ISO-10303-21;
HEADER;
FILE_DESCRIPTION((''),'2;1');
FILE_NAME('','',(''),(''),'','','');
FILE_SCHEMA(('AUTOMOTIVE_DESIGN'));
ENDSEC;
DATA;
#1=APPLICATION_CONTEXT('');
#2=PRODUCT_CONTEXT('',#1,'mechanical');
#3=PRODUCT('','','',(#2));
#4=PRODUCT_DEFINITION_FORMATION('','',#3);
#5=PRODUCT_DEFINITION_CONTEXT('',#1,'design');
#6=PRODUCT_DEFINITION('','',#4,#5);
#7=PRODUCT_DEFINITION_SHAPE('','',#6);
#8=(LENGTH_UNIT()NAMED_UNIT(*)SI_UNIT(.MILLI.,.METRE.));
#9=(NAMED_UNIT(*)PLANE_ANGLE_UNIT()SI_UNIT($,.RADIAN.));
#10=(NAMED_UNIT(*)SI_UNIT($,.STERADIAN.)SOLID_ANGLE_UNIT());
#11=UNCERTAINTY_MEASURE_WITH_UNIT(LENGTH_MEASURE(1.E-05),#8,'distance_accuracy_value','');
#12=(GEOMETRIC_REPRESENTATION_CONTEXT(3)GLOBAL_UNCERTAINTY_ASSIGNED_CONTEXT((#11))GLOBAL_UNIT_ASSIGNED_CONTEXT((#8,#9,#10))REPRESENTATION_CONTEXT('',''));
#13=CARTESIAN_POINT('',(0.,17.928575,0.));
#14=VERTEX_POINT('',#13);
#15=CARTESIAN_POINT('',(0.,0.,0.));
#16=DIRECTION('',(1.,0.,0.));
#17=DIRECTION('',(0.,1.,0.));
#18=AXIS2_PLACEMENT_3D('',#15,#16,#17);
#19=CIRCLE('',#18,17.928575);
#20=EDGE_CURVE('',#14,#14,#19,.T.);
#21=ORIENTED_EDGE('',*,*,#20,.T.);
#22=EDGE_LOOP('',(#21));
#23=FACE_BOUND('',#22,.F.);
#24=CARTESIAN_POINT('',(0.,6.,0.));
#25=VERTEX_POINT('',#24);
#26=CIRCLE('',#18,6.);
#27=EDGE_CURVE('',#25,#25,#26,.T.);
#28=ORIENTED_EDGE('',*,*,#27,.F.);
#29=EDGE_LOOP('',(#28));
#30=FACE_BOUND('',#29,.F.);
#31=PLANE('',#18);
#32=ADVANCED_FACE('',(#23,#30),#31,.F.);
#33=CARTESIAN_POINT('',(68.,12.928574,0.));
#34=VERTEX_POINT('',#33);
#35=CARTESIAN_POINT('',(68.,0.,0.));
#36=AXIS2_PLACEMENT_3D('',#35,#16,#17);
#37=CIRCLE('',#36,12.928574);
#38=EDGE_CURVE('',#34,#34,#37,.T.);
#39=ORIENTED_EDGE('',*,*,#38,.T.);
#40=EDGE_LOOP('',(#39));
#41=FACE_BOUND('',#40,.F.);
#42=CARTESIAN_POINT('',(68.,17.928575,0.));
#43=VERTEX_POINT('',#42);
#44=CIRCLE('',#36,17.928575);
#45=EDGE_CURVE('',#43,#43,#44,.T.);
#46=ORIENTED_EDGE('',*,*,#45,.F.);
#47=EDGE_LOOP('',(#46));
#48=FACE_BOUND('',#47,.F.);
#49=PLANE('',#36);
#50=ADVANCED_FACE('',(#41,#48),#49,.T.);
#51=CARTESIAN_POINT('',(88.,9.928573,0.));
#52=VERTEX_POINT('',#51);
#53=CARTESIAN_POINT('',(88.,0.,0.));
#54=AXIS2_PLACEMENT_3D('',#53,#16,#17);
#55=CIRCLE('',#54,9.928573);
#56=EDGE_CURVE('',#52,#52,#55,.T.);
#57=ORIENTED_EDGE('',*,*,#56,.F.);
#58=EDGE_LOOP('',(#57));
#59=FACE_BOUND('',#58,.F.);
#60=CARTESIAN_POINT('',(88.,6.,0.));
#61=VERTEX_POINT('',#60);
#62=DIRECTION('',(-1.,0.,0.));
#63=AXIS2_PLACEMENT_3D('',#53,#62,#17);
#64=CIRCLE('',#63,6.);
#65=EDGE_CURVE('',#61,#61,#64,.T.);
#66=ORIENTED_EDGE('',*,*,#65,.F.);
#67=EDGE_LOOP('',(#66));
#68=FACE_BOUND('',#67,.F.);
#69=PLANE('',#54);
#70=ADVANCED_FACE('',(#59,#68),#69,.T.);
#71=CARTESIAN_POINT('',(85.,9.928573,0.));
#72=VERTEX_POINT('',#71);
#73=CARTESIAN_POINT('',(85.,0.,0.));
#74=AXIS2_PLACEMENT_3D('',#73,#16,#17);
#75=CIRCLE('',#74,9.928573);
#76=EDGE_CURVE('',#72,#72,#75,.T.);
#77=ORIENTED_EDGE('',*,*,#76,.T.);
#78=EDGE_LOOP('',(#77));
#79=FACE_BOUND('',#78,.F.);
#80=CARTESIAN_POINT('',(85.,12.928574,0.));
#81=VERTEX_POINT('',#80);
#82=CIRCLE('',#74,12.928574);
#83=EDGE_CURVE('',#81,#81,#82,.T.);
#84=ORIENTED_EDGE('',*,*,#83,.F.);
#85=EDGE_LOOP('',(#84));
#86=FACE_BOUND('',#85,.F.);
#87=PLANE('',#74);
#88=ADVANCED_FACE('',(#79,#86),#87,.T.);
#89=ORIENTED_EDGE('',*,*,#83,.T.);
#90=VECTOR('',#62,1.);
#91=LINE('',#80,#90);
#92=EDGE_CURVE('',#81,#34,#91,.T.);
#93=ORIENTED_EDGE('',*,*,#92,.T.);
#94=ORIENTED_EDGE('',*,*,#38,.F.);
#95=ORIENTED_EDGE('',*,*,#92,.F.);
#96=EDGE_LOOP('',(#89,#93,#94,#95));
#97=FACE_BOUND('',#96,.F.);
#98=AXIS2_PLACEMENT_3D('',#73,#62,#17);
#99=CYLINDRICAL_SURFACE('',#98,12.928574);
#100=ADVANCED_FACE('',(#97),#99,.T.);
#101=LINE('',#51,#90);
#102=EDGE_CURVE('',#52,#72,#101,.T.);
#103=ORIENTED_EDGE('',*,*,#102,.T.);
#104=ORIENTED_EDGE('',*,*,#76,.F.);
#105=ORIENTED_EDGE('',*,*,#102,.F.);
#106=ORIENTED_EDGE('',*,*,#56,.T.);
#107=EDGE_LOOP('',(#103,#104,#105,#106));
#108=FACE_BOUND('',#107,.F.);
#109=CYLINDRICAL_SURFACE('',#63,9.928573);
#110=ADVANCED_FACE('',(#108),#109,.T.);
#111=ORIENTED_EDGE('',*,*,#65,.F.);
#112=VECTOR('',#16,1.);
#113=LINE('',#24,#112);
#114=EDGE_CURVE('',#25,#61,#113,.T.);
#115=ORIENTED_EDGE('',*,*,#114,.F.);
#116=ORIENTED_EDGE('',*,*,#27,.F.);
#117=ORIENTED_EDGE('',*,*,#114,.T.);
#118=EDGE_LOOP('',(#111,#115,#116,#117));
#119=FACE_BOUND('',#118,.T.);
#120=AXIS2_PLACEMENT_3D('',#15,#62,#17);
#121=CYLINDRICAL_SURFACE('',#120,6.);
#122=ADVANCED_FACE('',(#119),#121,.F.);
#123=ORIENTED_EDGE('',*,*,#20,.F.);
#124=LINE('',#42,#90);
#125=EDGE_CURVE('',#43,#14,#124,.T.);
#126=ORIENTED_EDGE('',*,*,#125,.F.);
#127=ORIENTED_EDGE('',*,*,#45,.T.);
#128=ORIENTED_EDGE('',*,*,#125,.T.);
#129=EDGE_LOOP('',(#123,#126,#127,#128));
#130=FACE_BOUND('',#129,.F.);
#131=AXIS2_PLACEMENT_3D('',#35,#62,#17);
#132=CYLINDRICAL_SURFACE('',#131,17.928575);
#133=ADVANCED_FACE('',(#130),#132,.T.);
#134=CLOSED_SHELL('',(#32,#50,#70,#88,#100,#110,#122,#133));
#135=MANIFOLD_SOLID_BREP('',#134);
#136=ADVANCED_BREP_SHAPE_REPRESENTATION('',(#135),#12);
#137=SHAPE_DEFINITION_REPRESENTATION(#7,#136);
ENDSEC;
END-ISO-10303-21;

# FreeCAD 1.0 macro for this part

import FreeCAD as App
import Part
import Sketcher

V = App.Vector

doc = App.newDocument("Part")
body = doc.addObject("PartDesign::Body", "Body")

sketch1 = body.newObject("Sketcher::SketchObject", "Sketch")
sketch1.AttachmentSupport = (doc.getObject("XY_Plane"), [""])
sketch1.MapMode = "FlatFace"
sketch1.addGeometry([
    Part.LineSegment(V(0, 17.928575, 0), V(0, 0, 0)),
    Part.LineSegment(V(0, 0, 0), V(88, 0, 0)),
    Part.LineSegment(V(88, 0, 0), V(88, 9.928573, 0)),
    Part.LineSegment(V(88, 9.928573, 0), V(85, 9.928573, 0)),
    Part.LineSegment(V(85, 9.928573, 0), V(85, 12.928574, 0)),
    Part.LineSegment(V(85, 12.928574, 0), V(68, 12.928574, 0)),
    Part.LineSegment(V(68, 12.928574, 0), V(68, 17.928575, 0)),
    Part.LineSegment(V(68, 17.928575, 0), V(0, 17.928575, 0)),
], False)
sketch1.addConstraint([
    Sketcher.Constraint("Coincident", 0, 2, 1, 1),
    Sketcher.Constraint("Coincident", 1, 2, 2, 1),
    Sketcher.Constraint("Coincident", 2, 2, 3, 1),
    Sketcher.Constraint("Coincident", 3, 2, 4, 1),
    Sketcher.Constraint("Coincident", 4, 2, 5, 1),
    Sketcher.Constraint("Coincident", 5, 2, 6, 1),
    Sketcher.Constraint("Coincident", 6, 2, 7, 1),
    Sketcher.Constraint("Coincident", 7, 2, 0, 1),
    Sketcher.Constraint("Vertical", 0),
    Sketcher.Constraint("Horizontal", 1),
    Sketcher.Constraint("Vertical", 2),
    Sketcher.Constraint("Horizontal", 3),
    Sketcher.Constraint("Vertical", 4),
    Sketcher.Constraint("Horizontal", 5),
    Sketcher.Constraint("Vertical", 6),
    Sketcher.Constraint("Horizontal", 7),
    Sketcher.Constraint("Coincident", 0, 2, -1, 1),
    Sketcher.Constraint("Equal", 3, 4),
    Sketcher.Constraint("DistanceX", 1, 1, 1, 2, 88.0),
    Sketcher.Constraint("DistanceX", 3, 2, 3, 1, 3.0),
    Sketcher.Constraint("DistanceX", 5, 2, 5, 1, 17.0),
    Sketcher.Constraint("DistanceY", 6, 1, 6, 2, 5.000001),
    Sketcher.Constraint("DistanceY", 0, 2, 0, 1, 17.928575),
])
revolution = body.newObject("PartDesign::Revolution", "Revolution")
revolution.Profile = sketch1
revolution.ReferenceAxis = (sketch1, ["H_Axis"])
revolution.Angle = 360

sketch2 = body.newObject("Sketcher::SketchObject", "Sketch001")
sketch2.AttachmentSupport = (doc.getObject("YZ_Plane"), [""])
sketch2.MapMode = "FlatFace"
sketch2.addGeometry(Part.Circle(V(0, 0, 0), V(0, 0, 1), 6), False)
sketch2.addConstraint([
    Sketcher.Constraint("Coincident", 0, 3, -1, 1),
    Sketcher.Constraint("Diameter", 0, 12.0),
])
pocket1 = body.newObject("PartDesign::Pocket", "Pocket")
pocket1.Profile = sketch2
pocket1.Type = "ThroughAll"
pocket1.Reversed = True

doc.recompute()
